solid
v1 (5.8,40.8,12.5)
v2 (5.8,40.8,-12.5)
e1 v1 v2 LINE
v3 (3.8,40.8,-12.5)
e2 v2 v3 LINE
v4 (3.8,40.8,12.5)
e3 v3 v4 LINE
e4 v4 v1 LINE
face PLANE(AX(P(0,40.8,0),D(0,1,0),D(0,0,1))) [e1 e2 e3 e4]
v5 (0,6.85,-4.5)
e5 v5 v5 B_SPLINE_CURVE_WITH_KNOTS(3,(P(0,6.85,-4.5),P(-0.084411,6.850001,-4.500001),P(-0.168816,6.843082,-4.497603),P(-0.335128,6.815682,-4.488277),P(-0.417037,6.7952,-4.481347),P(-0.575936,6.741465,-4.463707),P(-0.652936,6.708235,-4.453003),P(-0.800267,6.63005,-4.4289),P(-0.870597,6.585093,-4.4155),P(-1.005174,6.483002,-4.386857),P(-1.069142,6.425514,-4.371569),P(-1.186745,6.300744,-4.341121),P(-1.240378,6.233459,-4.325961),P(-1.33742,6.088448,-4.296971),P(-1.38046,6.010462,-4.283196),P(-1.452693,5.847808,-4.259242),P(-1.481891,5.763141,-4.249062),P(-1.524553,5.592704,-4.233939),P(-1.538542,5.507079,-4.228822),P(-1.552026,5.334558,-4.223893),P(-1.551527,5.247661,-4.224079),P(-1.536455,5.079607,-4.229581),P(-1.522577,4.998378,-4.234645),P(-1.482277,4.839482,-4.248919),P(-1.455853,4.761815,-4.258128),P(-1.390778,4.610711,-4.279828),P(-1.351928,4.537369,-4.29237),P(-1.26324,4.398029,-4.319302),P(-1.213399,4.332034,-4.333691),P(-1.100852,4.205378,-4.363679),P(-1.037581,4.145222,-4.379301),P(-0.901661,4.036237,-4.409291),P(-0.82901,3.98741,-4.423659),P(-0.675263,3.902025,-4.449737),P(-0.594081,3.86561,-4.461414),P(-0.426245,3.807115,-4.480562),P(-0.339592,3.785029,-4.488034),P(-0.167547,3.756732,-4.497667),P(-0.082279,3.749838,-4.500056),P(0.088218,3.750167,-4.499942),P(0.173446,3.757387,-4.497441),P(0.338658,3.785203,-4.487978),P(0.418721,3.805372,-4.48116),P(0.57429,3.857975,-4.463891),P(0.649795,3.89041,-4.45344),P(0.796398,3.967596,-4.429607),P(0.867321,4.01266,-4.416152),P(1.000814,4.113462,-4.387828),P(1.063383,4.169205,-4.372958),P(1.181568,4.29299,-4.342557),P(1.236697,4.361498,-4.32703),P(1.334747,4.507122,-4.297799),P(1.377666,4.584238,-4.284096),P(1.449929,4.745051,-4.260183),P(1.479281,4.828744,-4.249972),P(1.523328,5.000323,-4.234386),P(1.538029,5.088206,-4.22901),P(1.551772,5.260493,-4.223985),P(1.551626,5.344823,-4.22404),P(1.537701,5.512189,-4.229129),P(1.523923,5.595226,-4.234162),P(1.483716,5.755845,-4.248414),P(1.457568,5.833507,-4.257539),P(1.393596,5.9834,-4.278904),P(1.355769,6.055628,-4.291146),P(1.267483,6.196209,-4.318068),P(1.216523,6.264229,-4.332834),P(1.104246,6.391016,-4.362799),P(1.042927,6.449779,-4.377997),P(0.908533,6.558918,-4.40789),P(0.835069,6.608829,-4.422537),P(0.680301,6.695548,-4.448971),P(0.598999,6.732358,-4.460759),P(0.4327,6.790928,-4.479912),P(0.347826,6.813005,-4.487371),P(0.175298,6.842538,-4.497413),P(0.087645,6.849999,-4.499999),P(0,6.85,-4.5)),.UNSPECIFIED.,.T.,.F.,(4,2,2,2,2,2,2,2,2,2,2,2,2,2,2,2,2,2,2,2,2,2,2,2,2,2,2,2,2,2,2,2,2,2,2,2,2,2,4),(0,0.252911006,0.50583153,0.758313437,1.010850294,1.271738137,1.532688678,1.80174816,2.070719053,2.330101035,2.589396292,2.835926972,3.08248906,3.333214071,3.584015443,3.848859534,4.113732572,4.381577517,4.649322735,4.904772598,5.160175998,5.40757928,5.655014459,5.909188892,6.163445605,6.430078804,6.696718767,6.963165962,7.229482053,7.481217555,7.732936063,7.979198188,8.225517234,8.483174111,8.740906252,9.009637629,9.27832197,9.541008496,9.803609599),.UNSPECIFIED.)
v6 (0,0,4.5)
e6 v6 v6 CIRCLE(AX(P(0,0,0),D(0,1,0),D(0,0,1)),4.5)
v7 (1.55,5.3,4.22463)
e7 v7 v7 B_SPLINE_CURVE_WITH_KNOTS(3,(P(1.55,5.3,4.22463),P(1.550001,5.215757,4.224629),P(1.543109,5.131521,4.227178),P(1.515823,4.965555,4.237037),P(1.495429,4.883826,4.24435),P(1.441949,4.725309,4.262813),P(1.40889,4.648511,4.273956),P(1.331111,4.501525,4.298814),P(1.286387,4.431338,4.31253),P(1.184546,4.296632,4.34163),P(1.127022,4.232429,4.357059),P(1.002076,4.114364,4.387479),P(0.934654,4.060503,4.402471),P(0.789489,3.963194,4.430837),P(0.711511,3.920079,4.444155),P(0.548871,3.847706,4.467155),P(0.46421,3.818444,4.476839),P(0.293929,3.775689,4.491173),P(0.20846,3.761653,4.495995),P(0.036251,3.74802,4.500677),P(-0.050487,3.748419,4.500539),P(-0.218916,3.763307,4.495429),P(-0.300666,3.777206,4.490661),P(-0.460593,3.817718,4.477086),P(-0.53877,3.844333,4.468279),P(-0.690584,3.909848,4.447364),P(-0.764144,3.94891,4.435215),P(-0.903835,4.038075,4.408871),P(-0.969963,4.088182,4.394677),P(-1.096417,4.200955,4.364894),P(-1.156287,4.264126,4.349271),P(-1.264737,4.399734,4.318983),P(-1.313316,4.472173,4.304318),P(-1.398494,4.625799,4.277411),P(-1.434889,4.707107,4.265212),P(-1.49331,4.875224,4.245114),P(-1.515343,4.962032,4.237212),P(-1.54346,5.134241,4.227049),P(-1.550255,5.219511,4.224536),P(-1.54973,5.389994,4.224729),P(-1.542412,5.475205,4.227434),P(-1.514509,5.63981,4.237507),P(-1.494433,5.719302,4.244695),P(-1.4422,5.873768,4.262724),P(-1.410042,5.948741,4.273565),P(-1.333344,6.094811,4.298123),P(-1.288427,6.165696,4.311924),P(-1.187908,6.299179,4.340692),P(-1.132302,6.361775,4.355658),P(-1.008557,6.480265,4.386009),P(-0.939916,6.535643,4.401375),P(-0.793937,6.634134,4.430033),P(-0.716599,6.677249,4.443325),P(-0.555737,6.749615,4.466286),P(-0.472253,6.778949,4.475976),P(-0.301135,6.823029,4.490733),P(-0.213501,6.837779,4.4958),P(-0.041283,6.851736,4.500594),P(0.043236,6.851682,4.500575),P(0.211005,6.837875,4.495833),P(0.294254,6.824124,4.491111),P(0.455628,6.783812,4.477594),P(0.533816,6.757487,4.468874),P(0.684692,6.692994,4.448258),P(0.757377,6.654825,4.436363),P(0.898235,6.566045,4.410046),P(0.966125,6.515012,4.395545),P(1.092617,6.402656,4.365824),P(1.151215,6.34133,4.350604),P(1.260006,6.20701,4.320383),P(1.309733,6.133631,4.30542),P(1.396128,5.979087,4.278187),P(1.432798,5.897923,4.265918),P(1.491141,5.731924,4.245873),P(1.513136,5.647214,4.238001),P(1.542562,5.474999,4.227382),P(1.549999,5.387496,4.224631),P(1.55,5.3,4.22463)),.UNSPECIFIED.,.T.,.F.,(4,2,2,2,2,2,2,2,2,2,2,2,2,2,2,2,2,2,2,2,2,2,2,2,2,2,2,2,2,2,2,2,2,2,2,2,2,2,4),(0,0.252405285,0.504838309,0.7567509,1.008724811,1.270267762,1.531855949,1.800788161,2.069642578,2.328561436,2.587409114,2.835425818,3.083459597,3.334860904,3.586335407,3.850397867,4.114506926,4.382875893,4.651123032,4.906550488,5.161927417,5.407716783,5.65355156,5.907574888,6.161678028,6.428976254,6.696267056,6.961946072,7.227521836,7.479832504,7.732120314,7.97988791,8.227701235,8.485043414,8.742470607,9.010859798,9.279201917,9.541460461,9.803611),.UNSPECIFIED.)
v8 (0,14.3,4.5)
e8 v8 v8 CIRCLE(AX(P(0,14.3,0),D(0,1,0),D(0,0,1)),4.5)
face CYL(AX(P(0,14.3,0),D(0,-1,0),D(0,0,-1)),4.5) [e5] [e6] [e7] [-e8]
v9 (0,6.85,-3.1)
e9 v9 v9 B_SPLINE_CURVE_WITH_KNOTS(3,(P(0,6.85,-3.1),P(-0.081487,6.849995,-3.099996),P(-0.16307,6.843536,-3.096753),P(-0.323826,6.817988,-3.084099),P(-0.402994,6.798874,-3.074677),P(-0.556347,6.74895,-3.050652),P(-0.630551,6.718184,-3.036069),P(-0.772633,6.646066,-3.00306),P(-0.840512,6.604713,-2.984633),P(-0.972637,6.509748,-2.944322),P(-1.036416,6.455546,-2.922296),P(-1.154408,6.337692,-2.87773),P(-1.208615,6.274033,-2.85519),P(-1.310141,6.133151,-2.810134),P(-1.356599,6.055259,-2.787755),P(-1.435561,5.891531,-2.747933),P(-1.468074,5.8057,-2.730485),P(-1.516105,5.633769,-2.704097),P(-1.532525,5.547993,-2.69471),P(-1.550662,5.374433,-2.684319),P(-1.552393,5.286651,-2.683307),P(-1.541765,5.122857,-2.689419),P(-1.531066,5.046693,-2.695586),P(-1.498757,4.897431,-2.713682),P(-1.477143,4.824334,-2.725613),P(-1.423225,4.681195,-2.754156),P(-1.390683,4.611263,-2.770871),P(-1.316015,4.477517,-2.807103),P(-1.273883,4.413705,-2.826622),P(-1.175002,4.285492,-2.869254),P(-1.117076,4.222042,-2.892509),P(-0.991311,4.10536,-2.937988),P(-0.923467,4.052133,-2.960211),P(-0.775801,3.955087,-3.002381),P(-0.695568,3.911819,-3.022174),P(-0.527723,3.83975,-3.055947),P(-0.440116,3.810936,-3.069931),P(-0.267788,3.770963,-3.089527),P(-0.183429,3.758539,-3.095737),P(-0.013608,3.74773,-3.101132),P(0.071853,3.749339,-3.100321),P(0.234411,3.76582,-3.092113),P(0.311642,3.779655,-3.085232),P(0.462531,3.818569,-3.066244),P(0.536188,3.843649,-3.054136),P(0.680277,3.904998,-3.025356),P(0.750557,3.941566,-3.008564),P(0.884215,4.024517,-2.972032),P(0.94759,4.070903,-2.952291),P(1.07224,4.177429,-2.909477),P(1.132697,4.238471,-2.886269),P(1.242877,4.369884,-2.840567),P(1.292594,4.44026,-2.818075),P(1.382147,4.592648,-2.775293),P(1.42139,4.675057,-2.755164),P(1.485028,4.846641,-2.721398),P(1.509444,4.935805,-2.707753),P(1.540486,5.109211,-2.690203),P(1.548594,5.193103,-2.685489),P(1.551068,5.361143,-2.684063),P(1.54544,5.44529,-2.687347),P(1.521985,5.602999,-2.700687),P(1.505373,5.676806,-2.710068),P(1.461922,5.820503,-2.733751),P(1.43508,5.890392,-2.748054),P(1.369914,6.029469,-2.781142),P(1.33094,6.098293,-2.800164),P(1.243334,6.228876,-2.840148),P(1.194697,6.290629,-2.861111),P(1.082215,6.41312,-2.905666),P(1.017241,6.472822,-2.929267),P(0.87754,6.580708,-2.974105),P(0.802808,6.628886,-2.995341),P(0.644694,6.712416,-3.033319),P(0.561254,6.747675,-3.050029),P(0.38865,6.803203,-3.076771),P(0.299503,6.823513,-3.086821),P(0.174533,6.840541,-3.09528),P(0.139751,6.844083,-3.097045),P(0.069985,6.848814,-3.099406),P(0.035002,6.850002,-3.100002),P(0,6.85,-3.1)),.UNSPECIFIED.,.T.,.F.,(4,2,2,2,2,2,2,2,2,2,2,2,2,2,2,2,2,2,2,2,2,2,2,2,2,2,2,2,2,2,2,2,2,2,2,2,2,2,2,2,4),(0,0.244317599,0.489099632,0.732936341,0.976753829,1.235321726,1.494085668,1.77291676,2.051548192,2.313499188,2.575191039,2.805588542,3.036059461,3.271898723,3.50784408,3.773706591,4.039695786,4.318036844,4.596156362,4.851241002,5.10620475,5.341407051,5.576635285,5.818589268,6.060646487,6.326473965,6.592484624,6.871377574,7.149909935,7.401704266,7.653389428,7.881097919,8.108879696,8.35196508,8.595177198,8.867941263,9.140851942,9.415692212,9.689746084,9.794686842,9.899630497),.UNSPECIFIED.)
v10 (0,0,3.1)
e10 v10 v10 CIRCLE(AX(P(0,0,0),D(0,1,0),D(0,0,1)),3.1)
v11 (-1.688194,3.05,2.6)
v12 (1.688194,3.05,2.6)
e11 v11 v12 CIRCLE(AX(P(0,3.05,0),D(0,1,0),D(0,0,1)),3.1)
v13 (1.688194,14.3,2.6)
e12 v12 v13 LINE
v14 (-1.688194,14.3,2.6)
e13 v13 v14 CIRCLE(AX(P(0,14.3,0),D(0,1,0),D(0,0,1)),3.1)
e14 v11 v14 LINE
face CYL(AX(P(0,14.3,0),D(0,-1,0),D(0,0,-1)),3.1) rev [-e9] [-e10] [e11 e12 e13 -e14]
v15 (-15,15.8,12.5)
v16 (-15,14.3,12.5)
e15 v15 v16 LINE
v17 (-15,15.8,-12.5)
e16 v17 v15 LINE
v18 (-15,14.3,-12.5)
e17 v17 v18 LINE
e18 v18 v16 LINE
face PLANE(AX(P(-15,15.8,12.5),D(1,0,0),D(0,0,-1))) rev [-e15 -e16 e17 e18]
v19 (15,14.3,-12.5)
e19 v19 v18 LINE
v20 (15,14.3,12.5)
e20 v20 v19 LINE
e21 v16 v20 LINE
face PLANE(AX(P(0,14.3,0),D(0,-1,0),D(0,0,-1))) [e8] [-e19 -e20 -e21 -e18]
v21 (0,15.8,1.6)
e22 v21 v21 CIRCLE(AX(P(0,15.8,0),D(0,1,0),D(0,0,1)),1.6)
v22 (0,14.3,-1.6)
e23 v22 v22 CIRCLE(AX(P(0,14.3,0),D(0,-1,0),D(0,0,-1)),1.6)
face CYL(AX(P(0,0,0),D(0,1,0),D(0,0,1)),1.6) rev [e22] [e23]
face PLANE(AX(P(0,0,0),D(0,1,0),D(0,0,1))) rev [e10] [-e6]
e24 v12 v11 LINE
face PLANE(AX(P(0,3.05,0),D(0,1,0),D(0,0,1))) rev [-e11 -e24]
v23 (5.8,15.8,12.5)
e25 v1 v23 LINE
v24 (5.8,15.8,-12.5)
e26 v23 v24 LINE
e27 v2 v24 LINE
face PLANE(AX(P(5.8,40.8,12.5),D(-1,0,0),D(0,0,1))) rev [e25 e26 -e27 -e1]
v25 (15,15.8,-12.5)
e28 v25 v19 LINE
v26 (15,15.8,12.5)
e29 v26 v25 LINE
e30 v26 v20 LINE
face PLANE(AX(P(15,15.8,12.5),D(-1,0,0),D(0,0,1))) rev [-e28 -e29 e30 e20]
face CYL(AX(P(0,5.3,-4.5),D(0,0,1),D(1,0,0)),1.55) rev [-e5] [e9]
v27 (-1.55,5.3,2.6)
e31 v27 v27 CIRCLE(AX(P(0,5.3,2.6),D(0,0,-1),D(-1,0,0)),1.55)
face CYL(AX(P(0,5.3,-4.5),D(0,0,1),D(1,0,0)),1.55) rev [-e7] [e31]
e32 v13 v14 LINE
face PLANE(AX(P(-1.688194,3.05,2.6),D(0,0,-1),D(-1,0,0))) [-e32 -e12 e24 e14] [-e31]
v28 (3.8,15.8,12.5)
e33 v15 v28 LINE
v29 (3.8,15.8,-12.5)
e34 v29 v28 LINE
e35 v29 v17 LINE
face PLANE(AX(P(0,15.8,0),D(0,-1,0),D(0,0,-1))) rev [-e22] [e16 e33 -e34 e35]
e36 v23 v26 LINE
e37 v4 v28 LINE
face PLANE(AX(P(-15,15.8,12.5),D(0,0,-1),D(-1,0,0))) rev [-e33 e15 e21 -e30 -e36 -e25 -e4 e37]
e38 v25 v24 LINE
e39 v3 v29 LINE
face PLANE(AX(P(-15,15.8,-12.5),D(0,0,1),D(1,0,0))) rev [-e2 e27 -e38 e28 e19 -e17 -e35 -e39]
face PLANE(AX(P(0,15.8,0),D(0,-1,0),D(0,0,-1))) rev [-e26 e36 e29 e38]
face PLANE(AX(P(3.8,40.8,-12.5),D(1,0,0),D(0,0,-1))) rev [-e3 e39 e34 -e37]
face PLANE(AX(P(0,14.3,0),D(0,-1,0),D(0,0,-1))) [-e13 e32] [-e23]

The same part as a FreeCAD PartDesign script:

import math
import FreeCAD as App
import Part
import Sketcher
from FreeCAD import Vector
Q = App.Units.Quantity

doc = App.newDocument("Part")
body = doc.addObject("PartDesign::Body", "Body")

# Sketch on XZ plane
sketch1 = body.newObject("Sketcher::SketchObject", "Sketch")
sketch1.AttachmentSupport = (doc.getObject("XZ_Plane"), [""])
sketch1.MapMode = "FlatFace"
sketch1.addGeometry(Part.Circle(Vector(0, 0, 0), Vector(0, 0, 1), 4.5), False)
sketch1.addGeometry(Part.Circle(Vector(0, 0, 0), Vector(0, 0, 1), 3.1), False)
sketch1.addConstraint(Sketcher.Constraint("Coincident", 0, 3, -1, 1))
sketch1.addConstraint(Sketcher.Constraint("Coincident", 1, 3, -1, 1))
sketch1.addConstraint(Sketcher.Constraint("Diameter", 0, Q("9 mm")))
sketch1.addConstraint(Sketcher.Constraint("Diameter", 1, Q("6.2 mm")))
pad1 = body.newObject("PartDesign::Pad", "Pad")
pad1.Profile = sketch1
pad1.Length = 14.3
pad1.Reversed = True

# Sketch on XZ plane
sketch2 = body.newObject("Sketcher::SketchObject", "Sketch001")
sketch2.AttachmentSupport = (doc.getObject("XZ_Plane"), [""])
sketch2.MapMode = "FlatFace"
sketch2.AttachmentOffset = App.Placement(Vector(0, 0, -3.05), App.Rotation())
sketch2.addGeometry(Part.LineSegment(Vector(1.688194, 2.6, 0), Vector(-1.688194, 2.6, 0)), False)
sketch2.addGeometry(Part.ArcOfCircle(Part.Circle(Vector(0, 0, 0), Vector(0, 0, 1), 3.1), math.radians(57.004115), math.radians(122.995885)), False)
sketch2.addConstraint(Sketcher.Constraint("Coincident", 0, 1, 1, 1))
sketch2.addConstraint(Sketcher.Constraint("Coincident", 1, 2, 0, 2))
sketch2.addConstraint(Sketcher.Constraint("Horizontal", 0))
sketch2.addConstraint(Sketcher.Constraint("Coincident", 1, 3, -1, 1))
sketch2.addConstraint(Sketcher.Constraint("Radius", 1, Q("3.1 mm")))
sketch2.addConstraint(Sketcher.Constraint("DistanceY", -1, 1, 0, 1, Q("2.6 mm")))
pad2 = body.newObject("PartDesign::Pad", "Pad001")
pad2.Profile = sketch2
pad2.Length = 11.25
pad2.Reversed = True

# Sketch on XY plane
sketch3 = body.newObject("Sketcher::SketchObject", "Sketch002")
sketch3.AttachmentSupport = (doc.getObject("XY_Plane"), [""])
sketch3.MapMode = "FlatFace"
sketch3.addGeometry(Part.Circle(Vector(0, 5.3, 0), Vector(0, 0, 1), 1.55), False)
sketch3.addConstraint(Sketcher.Constraint("PointOnObject", 0, 3, -2))
sketch3.addConstraint(Sketcher.Constraint("Diameter", 0, Q("3.1 mm")))
sketch3.addConstraint(Sketcher.Constraint("DistanceY", -1, 1, 0, 3, Q("5.3 mm")))
pocket1 = body.newObject("PartDesign::Pocket", "Pocket")
pocket1.Profile = sketch3
pocket1.Type = "ThroughAll"
pocket1.Midplane = True

# Sketch on XZ plane
sketch4 = body.newObject("Sketcher::SketchObject", "Sketch003")
sketch4.AttachmentSupport = (doc.getObject("XZ_Plane"), [""])
sketch4.MapMode = "FlatFace"
sketch4.AttachmentOffset = App.Placement(Vector(0, 0, -14.3), App.Rotation())
sketch4.addGeometry(Part.LineSegment(Vector(-15, -12.5, 0), Vector(-15, 12.5, 0)), False)
sketch4.addGeometry(Part.LineSegment(Vector(-15, 12.5, 0), Vector(15, 12.5, 0)), False)
sketch4.addGeometry(Part.LineSegment(Vector(15, 12.5, 0), Vector(15, -12.5, 0)), False)
sketch4.addGeometry(Part.LineSegment(Vector(15, -12.5, 0), Vector(-15, -12.5, 0)), False)
sketch4.addConstraint(Sketcher.Constraint("Coincident", 0, 2, 1, 1))
sketch4.addConstraint(Sketcher.Constraint("Coincident", 1, 2, 2, 1))
sketch4.addConstraint(Sketcher.Constraint("Coincident", 2, 2, 3, 1))
sketch4.addConstraint(Sketcher.Constraint("Coincident", 3, 2, 0, 1))
sketch4.addConstraint(Sketcher.Constraint("Vertical", 0))
sketch4.addConstraint(Sketcher.Constraint("Horizontal", 1))
sketch4.addConstraint(Sketcher.Constraint("Vertical", 2))
sketch4.addConstraint(Sketcher.Constraint("Horizontal", 3))
sketch4.addConstraint(Sketcher.Constraint("Symmetric", 0, 2, 2, 2, -1, 1))
sketch4.addConstraint(Sketcher.Constraint("DistanceX", 1, 1, 1, 2, Q("30 mm")))
sketch4.addConstraint(Sketcher.Constraint("DistanceY", 0, 1, 0, 2, Q("25 mm")))
pad3 = body.newObject("PartDesign::Pad", "Pad002")
pad3.Profile = sketch4
pad3.Length = 1.5
pad3.Reversed = True

# Sketch on XZ plane
sketch5 = body.newObject("Sketcher::SketchObject", "Sketch004")
sketch5.AttachmentSupport = (doc.getObject("XZ_Plane"), [""])
sketch5.MapMode = "FlatFace"
sketch5.AttachmentOffset = App.Placement(Vector(0, 0, -15.8), App.Rotation())
sketch5.addGeometry(Part.Circle(Vector(0, 0, 0), Vector(0, 0, 1), 1.6), False)
sketch5.addConstraint(Sketcher.Constraint("Coincident", 0, 3, -1, 1))
sketch5.addConstraint(Sketcher.Constraint("Diameter", 0, Q("3.2 mm")))
pocket2 = body.newObject("PartDesign::Pocket", "Pocket001")
pocket2.Profile = sketch5
pocket2.Type = "ThroughAll"
pocket2.Reversed = True

# Sketch on XZ plane
sketch6 = body.newObject("Sketcher::SketchObject", "Sketch005")
sketch6.AttachmentSupport = (doc.getObject("XZ_Plane"), [""])
sketch6.MapMode = "FlatFace"
sketch6.AttachmentOffset = App.Placement(Vector(0, 0, -15.8), App.Rotation())
sketch6.addGeometry(Part.LineSegment(Vector(3.8, -12.5, 0), Vector(3.8, 12.5, 0)), False)
sketch6.addGeometry(Part.LineSegment(Vector(3.8, 12.5, 0), Vector(5.8, 12.5, 0)), False)
sketch6.addGeometry(Part.LineSegment(Vector(5.8, 12.5, 0), Vector(5.8, -12.5, 0)), False)
sketch6.addGeometry(Part.LineSegment(Vector(5.8, -12.5, 0), Vector(3.8, -12.5, 0)), False)
sketch6.addConstraint(Sketcher.Constraint("Coincident", 0, 2, 1, 1))
sketch6.addConstraint(Sketcher.Constraint("Coincident", 1, 2, 2, 1))
sketch6.addConstraint(Sketcher.Constraint("Coincident", 2, 2, 3, 1))
sketch6.addConstraint(Sketcher.Constraint("Coincident", 3, 2, 0, 1))
sketch6.addConstraint(Sketcher.Constraint("Vertical", 0))
sketch6.addConstraint(Sketcher.Constraint("Horizontal", 1))
sketch6.addConstraint(Sketcher.Constraint("Vertical", 2))
sketch6.addConstraint(Sketcher.Constraint("Horizontal", 3))
sketch6.addConstraint(Sketcher.Constraint("DistanceX", 1, 1, 1, 2, Q("2 mm")))
sketch6.addConstraint(Sketcher.Constraint("DistanceY", 0, 1, 0, 2, Q("25 mm")))
sketch6.addConstraint(Sketcher.Constraint("DistanceX", -1, 1, 0, 2, Q("3.8 mm")))
sketch6.addConstraint(Sketcher.Constraint("DistanceY", -1, 1, 0, 2, Q("12.5 mm")))
pad4 = body.newObject("PartDesign::Pad", "Pad003")
pad4.Profile = sketch6
pad4.Length = 25
pad4.Reversed = True

doc.recompute()
